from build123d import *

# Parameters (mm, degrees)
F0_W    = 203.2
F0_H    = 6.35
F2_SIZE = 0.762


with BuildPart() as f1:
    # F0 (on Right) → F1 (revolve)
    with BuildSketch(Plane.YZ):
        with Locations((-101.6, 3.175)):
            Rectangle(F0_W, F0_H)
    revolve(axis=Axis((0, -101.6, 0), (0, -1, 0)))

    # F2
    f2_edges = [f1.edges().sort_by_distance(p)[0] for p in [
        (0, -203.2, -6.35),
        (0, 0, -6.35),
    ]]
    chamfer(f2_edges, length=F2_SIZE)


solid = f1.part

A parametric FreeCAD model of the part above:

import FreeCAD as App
import Part
import Sketcher
Q = App.Units.Quantity


def edges_at(feature, points):
    """Names of the edges that pass closest to the given points."""
    edges = feature.Shape.Edges
    near = lambda p: min(range(len(edges)), key=lambda i: edges[i].distToShape(Part.Vertex(*p))[0])
    return sorted({f"Edge{near(p) + 1}" for p in points})


def add_polygon(sketch, points):
    """Adds a closed chain of lines whose ends are joined by coincident constraints."""
    first, n = sketch.GeometryCount, len(points)
    for a, b in zip(points, points[1:] + points[:1]):
        sketch.addGeometry(Part.LineSegment(App.Vector(*a, 0), App.Vector(*b, 0)), False)
    for i in range(n):
        sketch.addConstraint(Sketcher.Constraint("Coincident", first + i, 2, first + (i + 1) % n, 1))

doc = App.newDocument("Part")
body = doc.addObject("PartDesign::Body", "Body")

# Sketch on YZ plane
sketch1 = body.newObject("Sketcher::SketchObject", "Sketch")
sketch1.AttachmentSupport = (doc.getObject("YZ_Plane"), [""])
sketch1.MapMode = "FlatFace"
add_polygon(sketch1, [(-203.2, 6.35), (-203.2, 0), (0, 0), (0, 6.35)])  # lines 0-3
sketch1.addConstraint([
    Sketcher.Constraint("Vertical", 0),
    Sketcher.Constraint("Horizontal", 1),
    Sketcher.Constraint("Vertical", 2),
    Sketcher.Constraint("Horizontal", 3),
    Sketcher.Constraint("Coincident", 1, 2, -1, 1),
    Sketcher.Constraint("DistanceX", 1, 1, 1, 2, Q("8 in")),
    Sketcher.Constraint("DistanceY", 0, 2, 0, 1, Q("0.25 in")),
])
revolution = body.newObject("PartDesign::Revolution", "Revolution")
revolution.Profile = sketch1
revolution.ReferenceAxis = (sketch1, ["H_Axis"])
revolution.Angle = 360
doc.recompute()

chamfer = body.newObject("PartDesign::Chamfer", "Chamfer")
chamfer.Base = (revolution, edges_at(revolution, [(0, -203.2, -6.35), (0, 0, -6.35)]))
chamfer.Size = Q("0.03 in")

doc.recompute()
